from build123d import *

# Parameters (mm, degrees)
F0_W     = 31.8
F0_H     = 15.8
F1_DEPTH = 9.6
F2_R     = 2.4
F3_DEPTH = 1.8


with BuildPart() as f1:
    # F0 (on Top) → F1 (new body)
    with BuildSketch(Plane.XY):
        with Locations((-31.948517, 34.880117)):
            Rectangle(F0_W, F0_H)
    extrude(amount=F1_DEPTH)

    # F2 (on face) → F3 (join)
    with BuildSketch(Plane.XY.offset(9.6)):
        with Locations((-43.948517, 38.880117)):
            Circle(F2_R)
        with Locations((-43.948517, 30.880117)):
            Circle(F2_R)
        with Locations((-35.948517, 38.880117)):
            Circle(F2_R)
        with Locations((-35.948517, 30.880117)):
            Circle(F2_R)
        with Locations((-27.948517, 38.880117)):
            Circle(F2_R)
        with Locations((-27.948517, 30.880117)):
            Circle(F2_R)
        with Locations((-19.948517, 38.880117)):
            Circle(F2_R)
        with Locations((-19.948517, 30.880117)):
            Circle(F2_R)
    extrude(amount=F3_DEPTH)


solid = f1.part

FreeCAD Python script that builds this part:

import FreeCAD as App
import Part
import Sketcher

V = App.Vector
Q = App.Units.Quantity


def add_polygon(sketch, points):
    """Adds a closed chain of lines whose ends are joined by coincident constraints."""
    first, n = sketch.GeometryCount, len(points)
    for a, b in zip(points, points[1:] + points[:1]):
        sketch.addGeometry(Part.LineSegment(App.Vector(*a, 0), App.Vector(*b, 0)), False)
    for i in range(n):
        sketch.addConstraint(Sketcher.Constraint("Coincident", first + i, 2, first + (i + 1) % n, 1))

doc = App.newDocument("Part")
params = doc.addObject("Spreadsheet::Sheet", "Params")
for row, (alias, value) in enumerate([
    ("sketch1_width", "31.8 mm"),
    ("sketch1_height", "15.8 mm"),
    ("pad1_length", "9.6 mm"),
    ("sketch2_diameter", "4.8 mm"),
    ("pad2_length", "1.8 mm"),
], start=1):
    params.set(f"A{row}", alias)
    params.set(f"B{row}", "=" + value)
    params.setAlias(f"B{row}", alias)

body = doc.addObject("PartDesign::Body", "Body")

# Sketch on XY plane
sketch1 = body.newObject("Sketcher::SketchObject", "Sketch")
sketch1.AttachmentSupport = (doc.getObject("XY_Plane"), [""])
sketch1.MapMode = "FlatFace"
add_polygon(sketch1, [(-48, 43), (-48, 27), (-16, 27), (-16, 43)])  # lines 0-3
sketch1.addConstraint(Sketcher.Constraint("Vertical", 0))
sketch1.addConstraint(Sketcher.Constraint("Horizontal", 1))
sketch1.addConstraint(Sketcher.Constraint("Vertical", 2))
sketch1.addConstraint(Sketcher.Constraint("Horizontal", 3))
sketch1.addConstraint(Sketcher.Constraint("DistanceX", 1, 1, 1, 2, Q("31.8 mm")))
sketch1.addConstraint(Sketcher.Constraint("DistanceY", 0, 2, 0, 1, Q("15.8 mm")))
sketch1.addConstraint(Sketcher.Constraint("DistanceX", 0, 2, -1, 1, Q("47.848517 mm")))
sketch1.addConstraint(Sketcher.Constraint("DistanceY", -1, 1, 0, 2, Q("26.980117 mm")))
sketch1.setExpression("Constraints[8]", "Params.sketch1_width")
sketch1.setExpression("Constraints[9]", "Params.sketch1_height")
pad1 = body.newObject("PartDesign::Pad", "Pad")
pad1.Profile = sketch1
pad1.setExpression("Length", "Params.pad1_length")

# Sketch on XY plane
sketch2 = body.newObject("Sketcher::SketchObject", "Sketch001")
sketch2.AttachmentSupport = (doc.getObject("XY_Plane"), [""])
sketch2.MapMode = "FlatFace"
sketch2.AttachmentOffset = App.Placement(V(0, 0, 9.6), App.Rotation())
sketch2.addGeometry(Part.Circle(V(-43.9, 38.9, 0), V(0, 0, 1), 2.4), False)
sketch2.addGeometry(Part.Circle(V(-43.9, 30.9, 0), V(0, 0, 1), 2.4), False)
sketch2.addGeometry(Part.Circle(V(-35.9, 38.9, 0), V(0, 0, 1), 2.4), False)
sketch2.addGeometry(Part.Circle(V(-35.9, 30.9, 0), V(0, 0, 1), 2.4), False)
sketch2.addGeometry(Part.Circle(V(-27.9, 38.9, 0), V(0, 0, 1), 2.4), False)
sketch2.addGeometry(Part.Circle(V(-27.9, 30.9, 0), V(0, 0, 1), 2.4), False)
sketch2.addGeometry(Part.Circle(V(-19.9, 38.9, 0), V(0, 0, 1), 2.4), False)
sketch2.addGeometry(Part.Circle(V(-19.9, 30.9, 0), V(0, 0, 1), 2.4), False)
sketch2.addConstraint(Sketcher.Constraint("Equal", 0, 1))
sketch2.addConstraint(Sketcher.Constraint("Equal", 1, 2))
sketch2.addConstraint(Sketcher.Constraint("Equal", 2, 3))
sketch2.addConstraint(Sketcher.Constraint("Equal", 3, 4))
sketch2.addConstraint(Sketcher.Constraint("Equal", 4, 5))
sketch2.addConstraint(Sketcher.Constraint("Equal", 5, 6))
sketch2.addConstraint(Sketcher.Constraint("Equal", 6, 7))
sketch2.addConstraint(Sketcher.Constraint("Horizontal", 0, 3, 2, 3))
sketch2.addConstraint(Sketcher.Constraint("Horizontal", 1, 3, 3, 3))
sketch2.addConstraint(Sketcher.Constraint("Horizontal", 2, 3, 4, 3))
sketch2.addConstraint(Sketcher.Constraint("Horizontal", 3, 3, 5, 3))
sketch2.addConstraint(Sketcher.Constraint("Horizontal", 4, 3, 6, 3))
sketch2.addConstraint(Sketcher.Constraint("Horizontal", 5, 3, 7, 3))
sketch2.addConstraint(Sketcher.Constraint("Vertical", 0, 3, 1, 3))
sketch2.addConstraint(Sketcher.Constraint("Vertical", 2, 3, 3, 3))
sketch2.addConstraint(Sketcher.Constraint("Vertical", 4, 3, 5, 3))
sketch2.addConstraint(Sketcher.Constraint("Vertical", 6, 3, 7, 3))
sketch2.addConstraint(Sketcher.Constraint("Diameter", 0, Q("4.8 mm")))
sketch2.addConstraint(Sketcher.Constraint("DistanceY", 1, 3, 0, 3, Q("8 mm")))
sketch2.addConstraint(Sketcher.Constraint("DistanceX", 0, 3, 2, 3, Q("8 mm")))
sketch2.addConstraint(Sketcher.Constraint("DistanceX", 2, 3, 4, 3, Q("8 mm")))
sketch2.addConstraint(Sketcher.Constraint("DistanceX", 4, 3, 6, 3, Q("8 mm")))
sketch2.addConstraint(Sketcher.Constraint("DistanceX", 0, 3, -1, 1, Q("43.948517 mm")))
sketch2.addConstraint(Sketcher.Constraint("DistanceY", -1, 1, 0, 3, Q("38.880117 mm")))
sketch2.setExpression("Constraints[17]", "Params.sketch2_diameter")
pad2 = body.newObject("PartDesign::Pad", "Pad001")
pad2.Profile = sketch2
pad2.setExpression("Length", "Params.pad2_length")

doc.recompute()
